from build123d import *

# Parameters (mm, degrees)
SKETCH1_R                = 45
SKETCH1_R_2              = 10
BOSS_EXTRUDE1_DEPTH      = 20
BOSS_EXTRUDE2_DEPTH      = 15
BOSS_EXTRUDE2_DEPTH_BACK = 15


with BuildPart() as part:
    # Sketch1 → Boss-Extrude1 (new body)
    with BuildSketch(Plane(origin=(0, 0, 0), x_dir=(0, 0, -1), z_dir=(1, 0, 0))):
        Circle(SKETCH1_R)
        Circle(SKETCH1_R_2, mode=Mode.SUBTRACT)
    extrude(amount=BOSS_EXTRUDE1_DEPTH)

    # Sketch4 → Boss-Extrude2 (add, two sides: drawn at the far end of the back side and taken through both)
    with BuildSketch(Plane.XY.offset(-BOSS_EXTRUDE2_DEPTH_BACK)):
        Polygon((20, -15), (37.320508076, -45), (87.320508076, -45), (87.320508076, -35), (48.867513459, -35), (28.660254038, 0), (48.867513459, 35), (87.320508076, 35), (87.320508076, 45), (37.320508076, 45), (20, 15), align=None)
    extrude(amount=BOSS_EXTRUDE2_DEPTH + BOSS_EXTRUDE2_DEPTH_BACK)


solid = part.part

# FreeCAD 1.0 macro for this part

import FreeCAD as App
import Part
import Sketcher

V = App.Vector
Q = App.Units.Quantity


def add_polygon(sketch, points):
    """Adds a closed chain of lines whose ends are joined by coincident constraints."""
    first, n = sketch.GeometryCount, len(points)
    for a, b in zip(points, points[1:] + points[:1]):
        sketch.addGeometry(Part.LineSegment(App.Vector(*a, 0), App.Vector(*b, 0)), False)
    for i in range(n):
        sketch.addConstraint(Sketcher.Constraint("Coincident", first + i, 2, first + (i + 1) % n, 1))

doc = App.newDocument("Part")
params = doc.addObject("Spreadsheet::Sheet", "Params")
for row, (alias, value) in enumerate([
    ("sketch1_diameter", "90 mm"),
    ("sketch1_diameter2", "20 mm"),
    ("pad1_length", "20 mm"),
    ("sketch2_width", "50 mm"),
    ("sketch2_height", "10 mm"),
    ("sketch2_height2", "30 mm"),
    ("pad2_length", "15 mm"),
    ("pad2_length2", "15 mm"),
], start=1):
    params.set(f"A{row}", alias)
    params.set(f"B{row}", "=" + value)
    params.setAlias(f"B{row}", alias)

body = doc.addObject("PartDesign::Body", "Body")

# Sketch on YZ plane
sketch1 = body.newObject("Sketcher::SketchObject", "Sketch")
sketch1.AttachmentSupport = (doc.getObject("YZ_Plane"), [""])
sketch1.MapMode = "FlatFace"
sketch1.addGeometry([
    Part.Circle(V(0, 0, 0), V(0, 0, 1), 45),
    Part.Circle(V(0, 0, 0), V(0, 0, 1), 10),
], False)
sketch1.addConstraint([
    Sketcher.Constraint("Coincident", 0, 3, -1, 1),
    Sketcher.Constraint("Coincident", 1, 3, -1, 1),
    Sketcher.Constraint("Diameter", 0, Q("90 mm")),
    Sketcher.Constraint("Diameter", 1, Q("20 mm")),
])
sketch1.setExpression("Constraints[2]", "Params.sketch1_diameter")
sketch1.setExpression("Constraints[3]", "Params.sketch1_diameter2")
pad1 = body.newObject("PartDesign::Pad", "Pad")
pad1.Profile = sketch1
pad1.setExpression("Length", "Params.pad1_length")

# Sketch on XY plane
sketch2 = body.newObject("Sketcher::SketchObject", "Sketch001")
sketch2.AttachmentSupport = (doc.getObject("XY_Plane"), [""])
sketch2.MapMode = "FlatFace"
add_polygon(sketch2, [(20, -15), (37.320508, -45), (87.320508, -45), (87.320508, -35), (48.867513, -35), (28.660254, 0), (48.867513, 35), (87.320508, 35), (87.320508, 45), (37.320508, 45), (20, 15)])  # lines 0-10
sketch2.addConstraint([
    Sketcher.Constraint("Horizontal", 1),
    Sketcher.Constraint("Vertical", 2),
    Sketcher.Constraint("Horizontal", 3),
    Sketcher.Constraint("Horizontal", 6),
    Sketcher.Constraint("Vertical", 7),
    Sketcher.Constraint("Horizontal", 8),
    Sketcher.Constraint("Vertical", 10),
    Sketcher.Constraint("Symmetric", 3, 2, 5, 2, -1),
    Sketcher.Constraint("Symmetric", 1, 2, 7, 2, -1),
    Sketcher.Constraint("PointOnObject", 4, 2, -1),
    Sketcher.Constraint("Parallel", 0, 4),
    Sketcher.Constraint("Parallel", 5, 9),
    Sketcher.Constraint("Vertical", 0, 2, 8, 2),
    Sketcher.Constraint("DistanceX", 1, 1, 1, 2, Q("50 mm")),
    Sketcher.Constraint("DistanceY", 2, 1, 2, 2, Q("10 mm")),
    Sketcher.Constraint("DistanceY", 10, 2, 10, 1, Q("30 mm")),
    Sketcher.Constraint("Angle", 0, Q("-60 deg")),
    Sketcher.Constraint("DistanceY", 0, 2, -1, 1, Q("45 mm")),
    Sketcher.Constraint("DistanceX", -1, 1, 9, 2, Q("20 mm")),
    Sketcher.Constraint("DistanceX", 3, 2, 3, 1, Q("38.452995 mm")),
])
sketch2.setExpression("Constraints[24]", "Params.sketch2_width")
sketch2.setExpression("Constraints[25]", "Params.sketch2_height")
sketch2.setExpression("Constraints[26]", "Params.sketch2_height2")
pad2 = body.newObject("PartDesign::Pad", "Pad001")
pad2.Profile = sketch2
pad2.Type = "TwoLengths"
pad2.setExpression("Length", "Params.pad2_length")
pad2.setExpression("Length2", "Params.pad2_length2")

doc.recompute()
